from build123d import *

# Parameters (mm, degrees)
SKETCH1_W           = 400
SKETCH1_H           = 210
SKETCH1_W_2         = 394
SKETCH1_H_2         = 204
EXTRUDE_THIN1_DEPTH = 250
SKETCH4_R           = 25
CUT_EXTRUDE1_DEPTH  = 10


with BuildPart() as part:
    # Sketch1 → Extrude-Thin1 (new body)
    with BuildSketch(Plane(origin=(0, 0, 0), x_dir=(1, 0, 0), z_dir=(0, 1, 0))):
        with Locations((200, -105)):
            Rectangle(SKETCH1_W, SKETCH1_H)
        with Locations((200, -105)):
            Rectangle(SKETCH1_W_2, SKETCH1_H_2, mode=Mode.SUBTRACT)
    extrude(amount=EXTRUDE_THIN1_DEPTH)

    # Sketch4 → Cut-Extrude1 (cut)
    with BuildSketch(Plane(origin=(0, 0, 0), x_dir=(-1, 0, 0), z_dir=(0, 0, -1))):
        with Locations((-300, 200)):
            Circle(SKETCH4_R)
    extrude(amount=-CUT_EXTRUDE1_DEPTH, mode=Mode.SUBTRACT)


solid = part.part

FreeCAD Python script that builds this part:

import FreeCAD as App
import Part
import Sketcher

V = App.Vector
Q = App.Units.Quantity


def add_polygon(sketch, points):
    """Adds a closed chain of lines whose ends are joined by coincident constraints."""
    first, n = sketch.GeometryCount, len(points)
    for a, b in zip(points, points[1:] + points[:1]):
        sketch.addGeometry(Part.LineSegment(App.Vector(*a, 0), App.Vector(*b, 0)), False)
    for i in range(n):
        sketch.addConstraint(Sketcher.Constraint("Coincident", first + i, 2, first + (i + 1) % n, 1))

doc = App.newDocument("Part")
body = doc.addObject("PartDesign::Body", "Body")

# Sketch on XZ plane
sketch1 = body.newObject("Sketcher::SketchObject", "Sketch")
sketch1.AttachmentSupport = (doc.getObject("XZ_Plane"), [""])
sketch1.MapMode = "FlatFace"
add_polygon(sketch1, [(0, 0), (0, 210), (400, 210), (400, 0)])  # lines 0-3
add_polygon(sketch1, [(397, 207), (3, 207), (3, 3), (397, 3)])  # lines 4-7
sketch1.addConstraint([
    Sketcher.Constraint("Vertical", 0),
    Sketcher.Constraint("Horizontal", 1),
    Sketcher.Constraint("Vertical", 2),
    Sketcher.Constraint("Horizontal", 3),
    Sketcher.Constraint("Horizontal", 4),
    Sketcher.Constraint("Vertical", 5),
    Sketcher.Constraint("Horizontal", 6),
    Sketcher.Constraint("Vertical", 7),
    Sketcher.Constraint("Coincident", 3, 2, -1, 1),
    Sketcher.Constraint("DistanceX", 1, 1, 1, 2, Q("400 mm")),
    Sketcher.Constraint("DistanceX", 4, 2, 4, 1, Q("394 mm")),
    Sketcher.Constraint("DistanceY", 0, 1, 0, 2, Q("210 mm")),
    Sketcher.Constraint("DistanceY", 5, 2, 5, 1, Q("204 mm")),
    Sketcher.Constraint("DistanceX", -1, 1, 4, 2, Q("3 mm")),
    Sketcher.Constraint("DistanceY", -1, 1, 4, 2, Q("207 mm")),
])
pad1 = body.newObject("PartDesign::Pad", "Pad")
pad1.Profile = sketch1
pad1.Length = 250
pad1.Reversed = True

# Sketch on XY plane
sketch2 = body.newObject("Sketcher::SketchObject", "Sketch001")
sketch2.AttachmentSupport = (doc.getObject("XY_Plane"), [""])
sketch2.MapMode = "FlatFace"
sketch2.addGeometry(Part.Circle(V(300, 200, 0), V(0, 0, 1), 25), False)
sketch2.addConstraint([
    Sketcher.Constraint("Diameter", 0, Q("50 mm")),
    Sketcher.Constraint("DistanceX", -1, 1, 0, 3, Q("300 mm")),
    Sketcher.Constraint("DistanceY", -1, 1, 0, 3, Q("200 mm")),
])
pocket1 = body.newObject("PartDesign::Pocket", "Pocket")
pocket1.Profile = sketch2
pocket1.Length = 10
pocket1.Reversed = True

doc.recompute()
